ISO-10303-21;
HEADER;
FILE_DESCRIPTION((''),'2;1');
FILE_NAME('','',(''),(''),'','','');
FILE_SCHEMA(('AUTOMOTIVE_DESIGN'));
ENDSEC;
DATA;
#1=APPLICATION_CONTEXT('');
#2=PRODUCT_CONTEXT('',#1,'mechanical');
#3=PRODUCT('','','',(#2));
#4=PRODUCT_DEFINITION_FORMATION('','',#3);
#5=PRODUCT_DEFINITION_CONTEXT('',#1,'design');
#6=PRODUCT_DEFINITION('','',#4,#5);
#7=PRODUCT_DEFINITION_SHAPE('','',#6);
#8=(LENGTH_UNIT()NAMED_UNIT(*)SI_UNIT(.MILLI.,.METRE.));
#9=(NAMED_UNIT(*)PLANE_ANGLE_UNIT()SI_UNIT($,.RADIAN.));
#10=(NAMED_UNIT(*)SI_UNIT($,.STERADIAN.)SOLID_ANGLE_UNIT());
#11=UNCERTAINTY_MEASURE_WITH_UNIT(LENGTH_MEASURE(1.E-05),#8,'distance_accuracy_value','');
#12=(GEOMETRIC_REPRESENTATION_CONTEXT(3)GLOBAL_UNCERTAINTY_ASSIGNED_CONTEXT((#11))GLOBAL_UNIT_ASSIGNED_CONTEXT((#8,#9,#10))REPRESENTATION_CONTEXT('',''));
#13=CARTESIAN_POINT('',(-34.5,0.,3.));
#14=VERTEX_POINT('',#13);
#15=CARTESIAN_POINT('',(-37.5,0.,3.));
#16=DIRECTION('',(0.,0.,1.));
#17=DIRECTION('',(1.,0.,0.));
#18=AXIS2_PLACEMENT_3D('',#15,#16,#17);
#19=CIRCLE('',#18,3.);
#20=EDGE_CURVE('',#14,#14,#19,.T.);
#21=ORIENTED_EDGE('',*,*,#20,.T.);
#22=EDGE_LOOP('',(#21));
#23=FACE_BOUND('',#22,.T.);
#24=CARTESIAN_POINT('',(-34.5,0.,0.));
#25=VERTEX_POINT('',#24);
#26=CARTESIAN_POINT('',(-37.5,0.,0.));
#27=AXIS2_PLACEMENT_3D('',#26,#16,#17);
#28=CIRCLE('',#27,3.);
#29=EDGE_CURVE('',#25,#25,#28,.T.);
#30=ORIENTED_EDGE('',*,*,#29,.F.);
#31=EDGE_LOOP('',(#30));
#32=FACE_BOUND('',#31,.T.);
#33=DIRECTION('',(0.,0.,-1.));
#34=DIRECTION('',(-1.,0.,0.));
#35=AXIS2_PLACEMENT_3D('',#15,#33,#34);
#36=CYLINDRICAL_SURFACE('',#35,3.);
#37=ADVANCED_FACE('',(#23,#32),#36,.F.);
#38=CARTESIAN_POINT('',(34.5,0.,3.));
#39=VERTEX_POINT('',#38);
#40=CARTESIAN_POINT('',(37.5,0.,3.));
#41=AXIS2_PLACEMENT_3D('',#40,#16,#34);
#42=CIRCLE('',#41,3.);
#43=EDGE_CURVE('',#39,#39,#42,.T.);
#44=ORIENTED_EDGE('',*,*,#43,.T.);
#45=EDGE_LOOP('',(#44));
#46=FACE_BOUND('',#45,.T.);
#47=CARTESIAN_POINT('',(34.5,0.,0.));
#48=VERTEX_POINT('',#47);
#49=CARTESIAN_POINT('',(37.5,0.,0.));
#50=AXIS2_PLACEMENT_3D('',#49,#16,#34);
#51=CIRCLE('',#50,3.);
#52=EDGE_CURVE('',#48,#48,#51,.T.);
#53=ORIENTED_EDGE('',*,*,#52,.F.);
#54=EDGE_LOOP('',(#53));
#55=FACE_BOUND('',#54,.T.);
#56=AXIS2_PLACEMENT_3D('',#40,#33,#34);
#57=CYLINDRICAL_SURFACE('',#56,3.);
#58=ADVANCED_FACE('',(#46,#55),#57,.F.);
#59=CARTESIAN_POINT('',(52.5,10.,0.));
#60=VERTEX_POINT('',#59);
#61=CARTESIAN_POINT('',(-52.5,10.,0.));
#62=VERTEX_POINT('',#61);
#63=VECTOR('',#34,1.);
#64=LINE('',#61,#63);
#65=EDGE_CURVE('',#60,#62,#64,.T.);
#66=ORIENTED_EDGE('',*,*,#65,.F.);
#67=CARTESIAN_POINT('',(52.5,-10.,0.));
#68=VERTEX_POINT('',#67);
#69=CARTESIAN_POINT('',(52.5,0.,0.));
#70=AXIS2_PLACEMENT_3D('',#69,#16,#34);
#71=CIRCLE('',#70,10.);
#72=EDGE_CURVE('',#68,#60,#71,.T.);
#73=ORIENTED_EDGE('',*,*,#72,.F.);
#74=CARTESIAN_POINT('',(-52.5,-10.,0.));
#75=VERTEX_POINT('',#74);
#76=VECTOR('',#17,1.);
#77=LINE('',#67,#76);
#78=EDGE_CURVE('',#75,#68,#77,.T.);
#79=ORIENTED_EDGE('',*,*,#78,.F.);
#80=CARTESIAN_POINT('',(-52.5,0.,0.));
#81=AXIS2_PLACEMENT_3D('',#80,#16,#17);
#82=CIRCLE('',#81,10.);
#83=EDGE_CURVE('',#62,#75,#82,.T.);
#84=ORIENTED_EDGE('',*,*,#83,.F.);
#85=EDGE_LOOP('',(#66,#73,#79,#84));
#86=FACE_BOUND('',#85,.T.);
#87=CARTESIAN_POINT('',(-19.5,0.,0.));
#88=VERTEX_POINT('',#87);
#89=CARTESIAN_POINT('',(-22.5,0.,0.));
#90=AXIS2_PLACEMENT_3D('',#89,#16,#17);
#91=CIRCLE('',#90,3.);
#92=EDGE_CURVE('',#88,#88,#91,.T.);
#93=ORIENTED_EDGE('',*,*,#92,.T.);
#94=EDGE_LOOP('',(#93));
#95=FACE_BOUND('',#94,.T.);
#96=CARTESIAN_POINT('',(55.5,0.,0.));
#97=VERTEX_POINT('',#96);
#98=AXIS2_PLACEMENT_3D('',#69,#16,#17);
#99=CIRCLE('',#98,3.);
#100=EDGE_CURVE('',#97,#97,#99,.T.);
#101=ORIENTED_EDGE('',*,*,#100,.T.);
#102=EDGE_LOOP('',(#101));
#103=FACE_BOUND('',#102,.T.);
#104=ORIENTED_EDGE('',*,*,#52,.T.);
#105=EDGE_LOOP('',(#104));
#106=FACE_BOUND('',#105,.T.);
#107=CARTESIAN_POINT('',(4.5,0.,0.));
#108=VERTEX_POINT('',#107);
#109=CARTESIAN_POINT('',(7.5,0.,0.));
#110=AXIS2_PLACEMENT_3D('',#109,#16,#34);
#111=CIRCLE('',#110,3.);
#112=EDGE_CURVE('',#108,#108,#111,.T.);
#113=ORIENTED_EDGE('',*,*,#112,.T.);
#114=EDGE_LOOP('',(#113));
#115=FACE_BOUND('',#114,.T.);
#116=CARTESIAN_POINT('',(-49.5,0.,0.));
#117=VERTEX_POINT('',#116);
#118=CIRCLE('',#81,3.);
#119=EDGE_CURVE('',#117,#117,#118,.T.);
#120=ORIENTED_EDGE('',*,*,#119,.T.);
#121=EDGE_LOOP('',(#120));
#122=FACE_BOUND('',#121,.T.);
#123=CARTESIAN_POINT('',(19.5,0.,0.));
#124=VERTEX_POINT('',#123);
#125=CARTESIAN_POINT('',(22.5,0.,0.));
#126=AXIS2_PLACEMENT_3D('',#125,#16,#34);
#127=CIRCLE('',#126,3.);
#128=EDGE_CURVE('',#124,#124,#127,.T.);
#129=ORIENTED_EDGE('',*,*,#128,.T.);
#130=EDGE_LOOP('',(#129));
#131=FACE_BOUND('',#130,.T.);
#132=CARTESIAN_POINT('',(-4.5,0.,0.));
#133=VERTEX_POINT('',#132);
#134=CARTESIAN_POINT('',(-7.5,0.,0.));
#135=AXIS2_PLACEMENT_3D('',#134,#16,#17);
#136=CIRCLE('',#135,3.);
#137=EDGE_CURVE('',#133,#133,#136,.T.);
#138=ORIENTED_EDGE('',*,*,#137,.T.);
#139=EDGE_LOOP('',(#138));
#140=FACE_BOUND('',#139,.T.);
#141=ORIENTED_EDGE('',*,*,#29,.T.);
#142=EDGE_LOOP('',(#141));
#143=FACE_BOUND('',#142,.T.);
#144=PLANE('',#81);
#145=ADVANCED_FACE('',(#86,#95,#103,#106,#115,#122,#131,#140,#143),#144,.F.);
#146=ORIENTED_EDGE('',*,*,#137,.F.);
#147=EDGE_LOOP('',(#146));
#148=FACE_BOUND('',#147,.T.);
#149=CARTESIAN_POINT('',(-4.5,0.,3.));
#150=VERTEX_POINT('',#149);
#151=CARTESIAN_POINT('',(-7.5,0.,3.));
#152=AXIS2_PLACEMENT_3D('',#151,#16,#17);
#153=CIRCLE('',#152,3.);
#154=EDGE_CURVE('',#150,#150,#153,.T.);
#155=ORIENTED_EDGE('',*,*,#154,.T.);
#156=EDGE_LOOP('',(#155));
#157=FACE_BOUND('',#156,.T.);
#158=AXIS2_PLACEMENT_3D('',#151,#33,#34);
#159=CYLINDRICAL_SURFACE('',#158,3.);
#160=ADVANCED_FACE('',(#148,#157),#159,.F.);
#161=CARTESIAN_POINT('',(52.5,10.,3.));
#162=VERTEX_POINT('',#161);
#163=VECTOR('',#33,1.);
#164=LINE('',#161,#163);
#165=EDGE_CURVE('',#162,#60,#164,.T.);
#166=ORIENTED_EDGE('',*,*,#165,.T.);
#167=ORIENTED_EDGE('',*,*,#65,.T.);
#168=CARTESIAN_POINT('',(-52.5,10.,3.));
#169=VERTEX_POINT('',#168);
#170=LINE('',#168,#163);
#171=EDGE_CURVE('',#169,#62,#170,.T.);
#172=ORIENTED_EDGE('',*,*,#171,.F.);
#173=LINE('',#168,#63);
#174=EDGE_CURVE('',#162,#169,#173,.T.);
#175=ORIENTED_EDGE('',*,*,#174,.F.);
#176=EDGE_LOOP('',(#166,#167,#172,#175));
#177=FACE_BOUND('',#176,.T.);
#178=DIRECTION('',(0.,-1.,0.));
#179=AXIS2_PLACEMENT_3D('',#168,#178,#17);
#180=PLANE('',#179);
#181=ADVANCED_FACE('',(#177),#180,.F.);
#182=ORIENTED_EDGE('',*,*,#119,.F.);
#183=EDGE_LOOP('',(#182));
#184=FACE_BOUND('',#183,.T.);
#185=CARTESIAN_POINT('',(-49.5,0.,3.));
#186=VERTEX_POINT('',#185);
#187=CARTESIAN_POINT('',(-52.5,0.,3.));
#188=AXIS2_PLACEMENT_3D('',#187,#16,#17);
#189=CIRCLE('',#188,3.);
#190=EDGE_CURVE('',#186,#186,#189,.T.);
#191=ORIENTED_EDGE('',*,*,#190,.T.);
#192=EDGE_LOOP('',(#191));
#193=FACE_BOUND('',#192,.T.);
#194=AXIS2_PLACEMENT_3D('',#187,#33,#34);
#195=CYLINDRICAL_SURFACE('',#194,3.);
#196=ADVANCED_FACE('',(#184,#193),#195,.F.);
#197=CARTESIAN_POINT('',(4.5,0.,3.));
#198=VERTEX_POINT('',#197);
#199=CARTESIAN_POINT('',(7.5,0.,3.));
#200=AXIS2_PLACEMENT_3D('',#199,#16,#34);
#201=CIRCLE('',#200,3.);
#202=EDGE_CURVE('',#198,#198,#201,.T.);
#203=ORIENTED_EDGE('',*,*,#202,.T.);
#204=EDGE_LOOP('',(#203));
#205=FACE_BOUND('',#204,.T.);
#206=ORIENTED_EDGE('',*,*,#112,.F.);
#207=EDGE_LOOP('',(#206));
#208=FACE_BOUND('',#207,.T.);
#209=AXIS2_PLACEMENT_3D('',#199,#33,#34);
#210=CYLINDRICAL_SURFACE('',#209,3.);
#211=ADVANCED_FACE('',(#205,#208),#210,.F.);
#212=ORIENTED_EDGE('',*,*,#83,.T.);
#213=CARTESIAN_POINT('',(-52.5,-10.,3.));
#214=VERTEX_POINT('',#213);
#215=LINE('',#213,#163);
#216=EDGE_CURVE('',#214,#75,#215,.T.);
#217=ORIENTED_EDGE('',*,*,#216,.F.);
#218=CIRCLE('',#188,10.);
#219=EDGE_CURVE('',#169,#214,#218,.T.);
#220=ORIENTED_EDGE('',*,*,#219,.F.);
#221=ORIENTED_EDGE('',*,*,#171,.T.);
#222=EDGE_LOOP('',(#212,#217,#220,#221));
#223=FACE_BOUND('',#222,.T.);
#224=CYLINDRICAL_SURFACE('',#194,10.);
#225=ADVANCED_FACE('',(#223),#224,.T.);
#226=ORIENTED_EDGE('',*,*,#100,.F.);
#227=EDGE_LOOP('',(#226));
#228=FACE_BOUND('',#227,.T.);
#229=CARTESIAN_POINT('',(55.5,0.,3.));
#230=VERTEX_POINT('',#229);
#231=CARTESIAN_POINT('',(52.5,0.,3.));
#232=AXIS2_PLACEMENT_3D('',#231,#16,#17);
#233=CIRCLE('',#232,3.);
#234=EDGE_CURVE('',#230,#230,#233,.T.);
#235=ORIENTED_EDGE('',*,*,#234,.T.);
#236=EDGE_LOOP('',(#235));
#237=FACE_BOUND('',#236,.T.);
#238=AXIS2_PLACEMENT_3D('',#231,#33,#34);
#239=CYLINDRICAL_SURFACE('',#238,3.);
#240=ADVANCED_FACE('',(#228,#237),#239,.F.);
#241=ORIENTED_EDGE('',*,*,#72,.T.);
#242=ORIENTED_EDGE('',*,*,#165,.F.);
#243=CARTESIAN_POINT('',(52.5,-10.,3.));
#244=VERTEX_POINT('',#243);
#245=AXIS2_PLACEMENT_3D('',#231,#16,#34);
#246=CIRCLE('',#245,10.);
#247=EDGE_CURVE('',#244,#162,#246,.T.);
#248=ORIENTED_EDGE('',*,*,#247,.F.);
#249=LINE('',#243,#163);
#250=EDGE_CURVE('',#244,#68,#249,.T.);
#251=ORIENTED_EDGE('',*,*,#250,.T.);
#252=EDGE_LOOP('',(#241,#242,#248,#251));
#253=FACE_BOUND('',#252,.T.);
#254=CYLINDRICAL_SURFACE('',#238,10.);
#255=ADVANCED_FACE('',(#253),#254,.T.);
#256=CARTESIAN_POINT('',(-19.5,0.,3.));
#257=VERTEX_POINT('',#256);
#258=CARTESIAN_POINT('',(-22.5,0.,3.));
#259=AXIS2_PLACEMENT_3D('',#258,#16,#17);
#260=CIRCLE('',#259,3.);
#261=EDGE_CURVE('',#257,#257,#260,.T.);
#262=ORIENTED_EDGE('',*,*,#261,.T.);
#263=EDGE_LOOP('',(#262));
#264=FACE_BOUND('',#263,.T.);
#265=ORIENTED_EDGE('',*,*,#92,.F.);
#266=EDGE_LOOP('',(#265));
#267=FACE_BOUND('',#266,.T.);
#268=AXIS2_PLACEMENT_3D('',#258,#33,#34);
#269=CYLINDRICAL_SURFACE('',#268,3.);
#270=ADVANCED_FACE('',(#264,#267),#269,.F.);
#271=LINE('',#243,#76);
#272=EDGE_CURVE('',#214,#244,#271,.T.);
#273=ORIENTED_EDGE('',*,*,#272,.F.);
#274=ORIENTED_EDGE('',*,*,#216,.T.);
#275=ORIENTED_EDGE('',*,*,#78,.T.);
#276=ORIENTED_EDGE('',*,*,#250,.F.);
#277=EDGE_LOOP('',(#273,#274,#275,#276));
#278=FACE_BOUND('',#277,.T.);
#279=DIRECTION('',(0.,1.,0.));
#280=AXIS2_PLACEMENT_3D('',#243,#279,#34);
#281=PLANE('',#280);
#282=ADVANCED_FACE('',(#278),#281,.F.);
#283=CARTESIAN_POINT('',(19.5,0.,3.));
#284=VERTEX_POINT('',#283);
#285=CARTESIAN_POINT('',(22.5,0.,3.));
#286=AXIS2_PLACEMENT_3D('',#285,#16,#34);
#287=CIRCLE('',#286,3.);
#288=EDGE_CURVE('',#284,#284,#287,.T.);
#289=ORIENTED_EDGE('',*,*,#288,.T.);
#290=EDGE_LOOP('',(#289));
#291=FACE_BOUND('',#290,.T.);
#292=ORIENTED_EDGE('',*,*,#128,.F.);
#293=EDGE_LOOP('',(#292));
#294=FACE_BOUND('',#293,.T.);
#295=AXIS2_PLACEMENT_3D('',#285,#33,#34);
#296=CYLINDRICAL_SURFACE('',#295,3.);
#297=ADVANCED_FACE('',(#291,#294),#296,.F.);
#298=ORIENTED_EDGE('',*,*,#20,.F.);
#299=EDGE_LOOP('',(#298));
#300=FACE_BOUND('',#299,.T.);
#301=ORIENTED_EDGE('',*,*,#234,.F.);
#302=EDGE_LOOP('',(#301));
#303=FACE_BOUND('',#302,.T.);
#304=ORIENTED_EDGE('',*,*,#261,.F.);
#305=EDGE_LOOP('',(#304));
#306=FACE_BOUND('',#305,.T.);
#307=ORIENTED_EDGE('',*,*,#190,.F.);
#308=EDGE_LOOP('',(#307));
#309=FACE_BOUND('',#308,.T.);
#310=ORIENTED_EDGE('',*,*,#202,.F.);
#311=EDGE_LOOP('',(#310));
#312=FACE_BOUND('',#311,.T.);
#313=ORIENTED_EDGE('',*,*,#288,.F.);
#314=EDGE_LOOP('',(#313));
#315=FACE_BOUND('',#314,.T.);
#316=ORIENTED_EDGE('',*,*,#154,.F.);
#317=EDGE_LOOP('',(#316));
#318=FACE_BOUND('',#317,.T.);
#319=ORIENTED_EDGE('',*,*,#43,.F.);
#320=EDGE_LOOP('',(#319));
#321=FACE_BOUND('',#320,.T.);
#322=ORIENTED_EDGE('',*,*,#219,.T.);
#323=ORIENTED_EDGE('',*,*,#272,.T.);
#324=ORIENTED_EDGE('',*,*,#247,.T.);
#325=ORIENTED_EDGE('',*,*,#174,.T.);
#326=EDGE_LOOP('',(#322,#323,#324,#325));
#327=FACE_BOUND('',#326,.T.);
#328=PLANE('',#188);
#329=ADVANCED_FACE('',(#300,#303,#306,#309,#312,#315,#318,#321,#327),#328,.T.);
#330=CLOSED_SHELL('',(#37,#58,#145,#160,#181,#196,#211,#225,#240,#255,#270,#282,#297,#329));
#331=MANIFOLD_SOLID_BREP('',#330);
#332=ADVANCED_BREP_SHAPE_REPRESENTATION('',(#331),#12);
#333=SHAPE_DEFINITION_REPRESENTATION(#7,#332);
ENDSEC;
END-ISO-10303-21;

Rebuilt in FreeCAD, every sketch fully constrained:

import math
import FreeCAD as App
import Part
import Sketcher

V = App.Vector
Q = App.Units.Quantity

doc = App.newDocument("Part")
params = doc.addObject("Spreadsheet::Sheet", "Params")
for row, (alias, value) in enumerate([
    ("sketch1_diameter", "6 mm"),
    ("sketch1_radius", "10 mm"),
    ("sketch1_width", "105 mm"),
    ("pad1_length", "3 mm"),
], start=1):
    params.set(f"A{row}", alias)
    params.set(f"B{row}", "=" + value)
    params.setAlias(f"B{row}", alias)

body = doc.addObject("PartDesign::Body", "Body")

# Sketch on XY plane
sketch1 = body.newObject("Sketcher::SketchObject", "Sketch")
sketch1.AttachmentSupport = (doc.getObject("XY_Plane"), [""])
sketch1.MapMode = "FlatFace"
sketch1.addGeometry(Part.LineSegment(V(52.5, 10, 0), V(-52.5, 10, 0)), False)
sketch1.addGeometry(Part.ArcOfCircle(Part.Circle(V(-52.5, 0, 0), V(0, 0, 1), 10), math.radians(90), math.radians(270)), False)
sketch1.addGeometry(Part.LineSegment(V(-52.5, -10, 0), V(52.5, -10, 0)), False)
sketch1.addGeometry(Part.ArcOfCircle(Part.Circle(V(52.5, 0, 0), V(0, 0, 1), 10), math.radians(-90), math.radians(90)), False)
sketch1.addGeometry(Part.Circle(V(52.5, 0, 0), V(0, 0, 1), 3), False)
sketch1.addGeometry(Part.Circle(V(37.5, 0, 0), V(0, 0, 1), 3), False)
sketch1.addGeometry(Part.Circle(V(22.5, 0, 0), V(0, 0, 1), 3), False)
sketch1.addGeometry(Part.Circle(V(7.5, 0, 0), V(0, 0, 1), 3), False)
sketch1.addGeometry(Part.Circle(V(-7.5, 0, 0), V(0, 0, 1), 3), False)
sketch1.addGeometry(Part.Circle(V(-22.5, 0, 0), V(0, 0, 1), 3), False)
sketch1.addGeometry(Part.Circle(V(-37.5, 0, 0), V(0, 0, 1), 3), False)
sketch1.addGeometry(Part.Circle(V(-52.5, 0, 0), V(0, 0, 1), 3), False)
sketch1.addConstraint(Sketcher.Constraint("Tangent", 0, 2, 1, 1))
sketch1.addConstraint(Sketcher.Constraint("Tangent", 1, 2, 2, 1))
sketch1.addConstraint(Sketcher.Constraint("Tangent", 2, 2, 3, 1))
sketch1.addConstraint(Sketcher.Constraint("Tangent", 3, 2, 0, 1))
sketch1.addConstraint(Sketcher.Constraint("Horizontal", 0))
sketch1.addConstraint(Sketcher.Constraint("Horizontal", 2))
sketch1.addConstraint(Sketcher.Constraint("Coincident", 4, 3, 3, 3))
sketch1.addConstraint(Sketcher.Constraint("Coincident", 11, 3, 1, 3))
sketch1.addConstraint(Sketcher.Constraint("Equal", 4, 5))
sketch1.addConstraint(Sketcher.Constraint("Equal", 5, 6))
sketch1.addConstraint(Sketcher.Constraint("Equal", 6, 7))
sketch1.addConstraint(Sketcher.Constraint("Equal", 7, 8))
sketch1.addConstraint(Sketcher.Constraint("Equal", 8, 9))
sketch1.addConstraint(Sketcher.Constraint("Equal", 9, 10))
sketch1.addConstraint(Sketcher.Constraint("Equal", 10, 11))
sketch1.addConstraint(Sketcher.Constraint("Symmetric", 1, 3, 3, 3, -1, 1))
sketch1.addConstraint(Sketcher.Constraint("Symmetric", 7, 3, 8, 3, -1, 1))
sketch1.addConstraint(Sketcher.Constraint("Symmetric", 6, 3, 9, 3, -1, 1))
sketch1.addConstraint(Sketcher.Constraint("Symmetric", 5, 3, 10, 3, -1, 1))
sketch1.addConstraint(Sketcher.Constraint("PointOnObject", 5, 3, -1))
sketch1.addConstraint(Sketcher.Constraint("PointOnObject", 6, 3, -1))
sketch1.addConstraint(Sketcher.Constraint("PointOnObject", 7, 3, -1))
sketch1.addConstraint(Sketcher.Constraint("Diameter", 4, Q("6 mm")))
sketch1.addConstraint(Sketcher.Constraint("Radius", 1, Q("10 mm")))
sketch1.addConstraint(Sketcher.Constraint("DistanceX", 0, 2, 0, 1, Q("105 mm")))
sketch1.addConstraint(Sketcher.Constraint("DistanceX", 5, 3, 3, 3, Q("15 mm")))
sketch1.addConstraint(Sketcher.Constraint("DistanceX", 6, 3, 5, 3, Q("15 mm")))
sketch1.addConstraint(Sketcher.Constraint("DistanceX", 7, 3, 6, 3, Q("15 mm")))
sketch1.setExpression("Constraints[22]", "Params.sketch1_diameter")
sketch1.setExpression("Constraints[23]", "Params.sketch1_radius")
sketch1.setExpression("Constraints[24]", "Params.sketch1_width")
pad1 = body.newObject("PartDesign::Pad", "Pad")
pad1.Profile = sketch1
pad1.setExpression("Length", "Params.pad1_length")

doc.recompute()
